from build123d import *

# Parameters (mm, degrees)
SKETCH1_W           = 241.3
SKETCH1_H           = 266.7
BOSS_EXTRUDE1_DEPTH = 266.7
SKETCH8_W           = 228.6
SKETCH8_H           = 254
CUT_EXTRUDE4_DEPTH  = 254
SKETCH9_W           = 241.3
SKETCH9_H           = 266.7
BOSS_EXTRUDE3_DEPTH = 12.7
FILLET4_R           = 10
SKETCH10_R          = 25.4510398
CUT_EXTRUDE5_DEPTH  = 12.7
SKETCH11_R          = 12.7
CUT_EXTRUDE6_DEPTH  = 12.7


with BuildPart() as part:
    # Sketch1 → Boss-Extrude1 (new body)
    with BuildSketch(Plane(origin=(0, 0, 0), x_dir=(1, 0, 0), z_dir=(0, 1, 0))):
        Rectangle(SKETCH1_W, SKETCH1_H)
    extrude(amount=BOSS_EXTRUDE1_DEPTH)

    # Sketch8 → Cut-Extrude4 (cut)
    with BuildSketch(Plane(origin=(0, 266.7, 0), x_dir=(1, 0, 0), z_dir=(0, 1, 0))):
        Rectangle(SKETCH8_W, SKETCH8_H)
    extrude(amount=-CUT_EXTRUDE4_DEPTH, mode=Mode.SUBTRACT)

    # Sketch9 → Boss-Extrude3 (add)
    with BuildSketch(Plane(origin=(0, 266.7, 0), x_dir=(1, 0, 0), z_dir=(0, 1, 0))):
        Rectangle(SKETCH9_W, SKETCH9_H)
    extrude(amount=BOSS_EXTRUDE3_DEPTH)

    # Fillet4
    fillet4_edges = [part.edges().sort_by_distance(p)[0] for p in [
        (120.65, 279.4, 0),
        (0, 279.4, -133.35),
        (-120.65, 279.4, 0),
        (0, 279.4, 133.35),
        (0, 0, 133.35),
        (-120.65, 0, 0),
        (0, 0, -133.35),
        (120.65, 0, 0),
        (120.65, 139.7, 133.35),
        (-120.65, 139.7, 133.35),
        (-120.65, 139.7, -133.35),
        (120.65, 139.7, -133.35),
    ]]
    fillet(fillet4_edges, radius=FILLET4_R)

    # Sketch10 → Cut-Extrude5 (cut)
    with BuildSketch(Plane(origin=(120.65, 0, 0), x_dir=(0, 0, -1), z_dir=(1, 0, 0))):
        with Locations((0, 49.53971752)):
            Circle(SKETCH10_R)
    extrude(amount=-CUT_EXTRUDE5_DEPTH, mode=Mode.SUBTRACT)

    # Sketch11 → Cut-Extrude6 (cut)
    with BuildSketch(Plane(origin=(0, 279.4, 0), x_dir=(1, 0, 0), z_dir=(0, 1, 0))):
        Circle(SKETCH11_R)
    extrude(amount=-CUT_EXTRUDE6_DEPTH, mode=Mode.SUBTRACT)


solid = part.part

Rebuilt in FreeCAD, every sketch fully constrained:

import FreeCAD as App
import Part
import Sketcher

V = App.Vector
Q = App.Units.Quantity


def edges_at(feature, points):
    """Names of the edges that pass closest to the given points."""
    edges = feature.Shape.Edges
    near = lambda p: min(range(len(edges)), key=lambda i: edges[i].distToShape(Part.Vertex(*p))[0])
    return sorted({f"Edge{near(p) + 1}" for p in points})


def add_polygon(sketch, points):
    """Adds a closed chain of lines whose ends are joined by coincident constraints."""
    first, n = sketch.GeometryCount, len(points)
    for a, b in zip(points, points[1:] + points[:1]):
        sketch.addGeometry(Part.LineSegment(App.Vector(*a, 0), App.Vector(*b, 0)), False)
    for i in range(n):
        sketch.addConstraint(Sketcher.Constraint("Coincident", first + i, 2, first + (i + 1) % n, 1))

doc = App.newDocument("Part")
body = doc.addObject("PartDesign::Body", "Body")

sketch1 = doc.addObject("Sketcher::SketchObject", "Sketch")
body.addObject(sketch1)
sketch1.AttachmentSupport = (doc.XZ_Plane, [""])
sketch1.MapMode = "FlatFace"
add_polygon(sketch1, [(-120.65, -133.35), (-120.65, 133.35), (120.65, 133.35), (120.65, -133.35)])
sketch1.addConstraint(Sketcher.Constraint("Vertical", 0))
sketch1.addConstraint(Sketcher.Constraint("Horizontal", 1))
sketch1.addConstraint(Sketcher.Constraint("Vertical", 2))
sketch1.addConstraint(Sketcher.Constraint("Horizontal", 3))
sketch1.addConstraint(Sketcher.Constraint("Symmetric", 0, 2, 2, 2, -1, 1))
sketch1.addConstraint(Sketcher.Constraint("DistanceX", 1, 1, 1, 2, Q("9.5 in")))
sketch1.addConstraint(Sketcher.Constraint("DistanceY", 0, 1, 0, 2, Q("10.5 in")))
pad1 = doc.addObject("PartDesign::Pad", "Pad")
body.addObject(pad1)
pad1.Profile = sketch1
pad1.Length = Q("10.5 in")
pad1.Reversed = True

sketch2 = doc.addObject("Sketcher::SketchObject", "Sketch001")
body.addObject(sketch2)
sketch2.AttachmentSupport = (doc.XZ_Plane, [""])
sketch2.MapMode = "FlatFace"
sketch2.AttachmentOffset = App.Placement(V(0, 0, -10.5 * 25.4), App.Rotation())
add_polygon(sketch2, [(-114.3, -127), (-114.3, 127), (114.3, 127), (114.3, -127)])
sketch2.addConstraint(Sketcher.Constraint("Vertical", 0))
sketch2.addConstraint(Sketcher.Constraint("Horizontal", 1))
sketch2.addConstraint(Sketcher.Constraint("Vertical", 2))
sketch2.addConstraint(Sketcher.Constraint("Horizontal", 3))
sketch2.addConstraint(Sketcher.Constraint("Symmetric", 0, 2, 2, 2, -1, 1))
sketch2.addConstraint(Sketcher.Constraint("DistanceX", 1, 1, 1, 2, Q("9 in")))
sketch2.addConstraint(Sketcher.Constraint("DistanceY", 0, 1, 0, 2, Q("10 in")))
pocket1 = doc.addObject("PartDesign::Pocket", "Pocket")
body.addObject(pocket1)
pocket1.Profile = sketch2
pocket1.Length = Q("10 in")
pocket1.Reversed = True

sketch3 = doc.addObject("Sketcher::SketchObject", "Sketch002")
body.addObject(sketch3)
sketch3.AttachmentSupport = (doc.XZ_Plane, [""])
sketch3.MapMode = "FlatFace"
sketch3.AttachmentOffset = App.Placement(V(0, 0, -10.5 * 25.4), App.Rotation())
add_polygon(sketch3, [(-120.65, -133.35), (-120.65, 133.35), (120.65, 133.35), (120.65, -133.35)])
sketch3.addConstraint(Sketcher.Constraint("Vertical", 0))
sketch3.addConstraint(Sketcher.Constraint("Horizontal", 1))
sketch3.addConstraint(Sketcher.Constraint("Vertical", 2))
sketch3.addConstraint(Sketcher.Constraint("Horizontal", 3))
sketch3.addConstraint(Sketcher.Constraint("Symmetric", 0, 2, 2, 2, -1, 1))
sketch3.addConstraint(Sketcher.Constraint("DistanceX", 1, 1, 1, 2, Q("9.5 in")))
sketch3.addConstraint(Sketcher.Constraint("DistanceY", 0, 1, 0, 2, Q("10.5 in")))
pad2 = doc.addObject("PartDesign::Pad", "Pad001")
body.addObject(pad2)
pad2.Profile = sketch3
pad2.Length = Q("0.5 in")
pad2.Reversed = True
doc.recompute()

fillet = doc.addObject("PartDesign::Fillet", "Fillet")
body.addObject(fillet)
fillet.Base = (pad2, edges_at(pad2, [
    (120.65, 279.4, 0),
    (0, 279.4, -133.35),
    (-120.65, 279.4, 0),
    (0, 279.4, 133.35),
    (0, 0, 133.35),
    (-120.65, 0, 0),
    (0, 0, -133.35),
    (120.65, 0, 0),
    (120.65, 139.7, 133.35),
    (-120.65, 139.7, 133.35),
    (-120.65, 139.7, -133.35),
    (120.65, 139.7, -133.35),
]))
fillet.Radius = 10

sketch4 = doc.addObject("Sketcher::SketchObject", "Sketch003")
body.addObject(sketch4)
sketch4.AttachmentSupport = (doc.YZ_Plane, [""])
sketch4.MapMode = "FlatFace"
sketch4.AttachmentOffset = App.Placement(V(0, 0, 4.75 * 25.4), App.Rotation())
sketch4.addGeometry(Part.Circle(V(49.539718, 0, 0), V(0, 0, 1), 25.45104), False)
sketch4.addConstraint(Sketcher.Constraint("PointOnObject", 0, 3, -1))
sketch4.addConstraint(Sketcher.Constraint("Diameter", 0, Q("50.90208 mm")))
sketch4.addConstraint(Sketcher.Constraint("DistanceX", -1, 1, 0, 3, Q("49.539718 mm")))
pocket2 = doc.addObject("PartDesign::Pocket", "Pocket001")
body.addObject(pocket2)
pocket2.Profile = sketch4
pocket2.Length = Q("0.5 in")

sketch5 = doc.addObject("Sketcher::SketchObject", "Sketch004")
body.addObject(sketch5)
sketch5.AttachmentSupport = (doc.XZ_Plane, [""])
sketch5.MapMode = "FlatFace"
sketch5.AttachmentOffset = App.Placement(V(0, 0, -11 * 25.4), App.Rotation())
sketch5.addGeometry(Part.Circle(V(0, 0, 0), V(0, 0, 1), 12.7), False)
sketch5.addConstraint(Sketcher.Constraint("Coincident", 0, 3, -1, 1))
sketch5.addConstraint(Sketcher.Constraint("Diameter", 0, Q("1 in")))
pocket3 = doc.addObject("PartDesign::Pocket", "Pocket002")
body.addObject(pocket3)
pocket3.Profile = sketch5
pocket3.Length = Q("0.5 in")
pocket3.Reversed = True

doc.recompute()
